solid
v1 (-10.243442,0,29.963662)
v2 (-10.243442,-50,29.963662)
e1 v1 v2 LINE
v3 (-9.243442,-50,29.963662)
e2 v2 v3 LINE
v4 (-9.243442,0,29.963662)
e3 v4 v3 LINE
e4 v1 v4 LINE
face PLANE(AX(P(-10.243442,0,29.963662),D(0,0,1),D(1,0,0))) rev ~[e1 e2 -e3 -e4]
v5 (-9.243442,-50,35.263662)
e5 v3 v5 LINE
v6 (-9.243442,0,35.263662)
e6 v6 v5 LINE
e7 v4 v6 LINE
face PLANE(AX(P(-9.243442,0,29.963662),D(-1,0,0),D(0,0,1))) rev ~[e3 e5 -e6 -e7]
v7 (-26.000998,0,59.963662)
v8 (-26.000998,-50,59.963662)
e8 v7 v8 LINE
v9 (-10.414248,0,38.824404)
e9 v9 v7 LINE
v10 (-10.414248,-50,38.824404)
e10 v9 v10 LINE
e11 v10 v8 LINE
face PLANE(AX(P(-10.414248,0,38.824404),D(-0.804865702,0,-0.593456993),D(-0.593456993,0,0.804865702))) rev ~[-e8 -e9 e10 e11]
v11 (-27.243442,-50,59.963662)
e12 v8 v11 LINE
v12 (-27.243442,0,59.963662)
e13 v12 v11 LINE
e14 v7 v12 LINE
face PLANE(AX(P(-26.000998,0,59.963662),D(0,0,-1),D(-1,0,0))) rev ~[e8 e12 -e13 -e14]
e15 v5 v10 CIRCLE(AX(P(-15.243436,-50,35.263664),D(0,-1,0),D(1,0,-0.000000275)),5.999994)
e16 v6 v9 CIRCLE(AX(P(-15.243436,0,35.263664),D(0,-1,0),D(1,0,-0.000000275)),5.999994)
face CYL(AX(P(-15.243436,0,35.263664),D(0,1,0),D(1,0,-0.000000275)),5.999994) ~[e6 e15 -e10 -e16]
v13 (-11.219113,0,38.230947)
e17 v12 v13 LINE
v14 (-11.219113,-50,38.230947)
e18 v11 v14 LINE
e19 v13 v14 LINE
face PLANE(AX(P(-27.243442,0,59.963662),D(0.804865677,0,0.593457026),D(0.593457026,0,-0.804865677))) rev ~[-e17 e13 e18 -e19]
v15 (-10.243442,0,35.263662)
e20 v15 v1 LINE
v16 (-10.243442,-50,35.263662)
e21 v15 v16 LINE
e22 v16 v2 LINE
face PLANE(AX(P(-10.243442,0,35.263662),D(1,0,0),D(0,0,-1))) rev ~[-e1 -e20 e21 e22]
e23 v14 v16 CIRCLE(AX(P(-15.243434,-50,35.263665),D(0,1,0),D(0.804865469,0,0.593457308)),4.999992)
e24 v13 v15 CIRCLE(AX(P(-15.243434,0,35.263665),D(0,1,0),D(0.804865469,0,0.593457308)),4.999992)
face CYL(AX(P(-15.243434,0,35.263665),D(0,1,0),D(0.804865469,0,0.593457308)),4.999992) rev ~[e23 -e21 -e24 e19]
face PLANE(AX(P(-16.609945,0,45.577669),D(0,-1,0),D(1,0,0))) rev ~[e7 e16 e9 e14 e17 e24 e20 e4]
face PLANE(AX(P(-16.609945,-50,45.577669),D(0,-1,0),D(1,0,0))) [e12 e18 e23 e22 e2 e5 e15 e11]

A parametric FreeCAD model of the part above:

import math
import FreeCAD as App
import Part
import Sketcher

V = App.Vector
Q = App.Units.Quantity

doc = App.newDocument("Part")
body = doc.addObject("PartDesign::Body", "Body")

sketch1 = body.newObject("Sketcher::SketchObject", "Sketch")
sketch1.AttachmentSupport = (doc.getObject("XZ_Plane"), [""])
sketch1.MapMode = "FlatFace"
sketch1.addGeometry([
    Part.LineSegment(V(-10.2, 30, 0), V(-9.2, 30, 0)),
    Part.LineSegment(V(-9.2, 30, 0), V(-9.2, 35.3, 0)),
    Part.ArcOfCircle(Part.Circle(V(-15.2, 35.3, 0), V(0, 0, 1), 6), math.radians(0), math.radians(36)),
    Part.LineSegment(V(-10.4, 38.8, 0), V(-26, 60, 0)),
    Part.LineSegment(V(-26, 60, 0), V(-27.2, 60, 0)),
    Part.LineSegment(V(-27.2, 60, 0), V(-11.2, 38.2, 0)),
    Part.ArcOfCircle(Part.Circle(V(-15.2, 35.3, 0), V(0, 0, 1), 5), math.radians(0), math.radians(36)),
    Part.LineSegment(V(-10.2, 35.3, 0), V(-10.2, 30, 0)),
], False)
sketch1.addConstraint([
    Sketcher.Constraint("Coincident", 0, 2, 1, 1),
    Sketcher.Constraint("Tangent", 1, 2, 2, 1),
    Sketcher.Constraint("Tangent", 2, 2, 3, 1),
    Sketcher.Constraint("Coincident", 3, 2, 4, 1),
    Sketcher.Constraint("Coincident", 4, 2, 5, 1),
    Sketcher.Constraint("Tangent", 5, 2, 6, 2),
    Sketcher.Constraint("Tangent", 6, 1, 7, 1),
    Sketcher.Constraint("Coincident", 7, 2, 0, 1),
    Sketcher.Constraint("Horizontal", 0),
    Sketcher.Constraint("Vertical", 1),
    Sketcher.Constraint("Horizontal", 4),
    Sketcher.Constraint("Vertical", 7),
    Sketcher.Constraint("Coincident", 6, 3, 2, 3),
    Sketcher.Constraint("Parallel", 3, 5),
    Sketcher.Constraint("DistanceX", 0, 1, 0, 2, Q("1 mm")),
    Sketcher.Constraint("DistanceY", 1, 1, 1, 2, Q("5.3 mm")),
    Sketcher.Constraint("DistanceY", 0, 2, 3, 2, Q("30 mm")),
    Sketcher.Constraint("DistanceX", 4, 2, 1, 2, Q("18 mm")),
    Sketcher.Constraint("Radius", 6, Q("4.999992 mm")),
    Sketcher.Constraint("DistanceY", -1, 1, 0, 2, Q("29.963662 mm")),
    Sketcher.Constraint("DistanceX", 2, 3, -1, 1, Q("15.243436 mm")),
])
pad1 = body.newObject("PartDesign::Pad", "Pad")
pad1.Profile = sketch1
pad1.Length = 50

doc.recompute()
